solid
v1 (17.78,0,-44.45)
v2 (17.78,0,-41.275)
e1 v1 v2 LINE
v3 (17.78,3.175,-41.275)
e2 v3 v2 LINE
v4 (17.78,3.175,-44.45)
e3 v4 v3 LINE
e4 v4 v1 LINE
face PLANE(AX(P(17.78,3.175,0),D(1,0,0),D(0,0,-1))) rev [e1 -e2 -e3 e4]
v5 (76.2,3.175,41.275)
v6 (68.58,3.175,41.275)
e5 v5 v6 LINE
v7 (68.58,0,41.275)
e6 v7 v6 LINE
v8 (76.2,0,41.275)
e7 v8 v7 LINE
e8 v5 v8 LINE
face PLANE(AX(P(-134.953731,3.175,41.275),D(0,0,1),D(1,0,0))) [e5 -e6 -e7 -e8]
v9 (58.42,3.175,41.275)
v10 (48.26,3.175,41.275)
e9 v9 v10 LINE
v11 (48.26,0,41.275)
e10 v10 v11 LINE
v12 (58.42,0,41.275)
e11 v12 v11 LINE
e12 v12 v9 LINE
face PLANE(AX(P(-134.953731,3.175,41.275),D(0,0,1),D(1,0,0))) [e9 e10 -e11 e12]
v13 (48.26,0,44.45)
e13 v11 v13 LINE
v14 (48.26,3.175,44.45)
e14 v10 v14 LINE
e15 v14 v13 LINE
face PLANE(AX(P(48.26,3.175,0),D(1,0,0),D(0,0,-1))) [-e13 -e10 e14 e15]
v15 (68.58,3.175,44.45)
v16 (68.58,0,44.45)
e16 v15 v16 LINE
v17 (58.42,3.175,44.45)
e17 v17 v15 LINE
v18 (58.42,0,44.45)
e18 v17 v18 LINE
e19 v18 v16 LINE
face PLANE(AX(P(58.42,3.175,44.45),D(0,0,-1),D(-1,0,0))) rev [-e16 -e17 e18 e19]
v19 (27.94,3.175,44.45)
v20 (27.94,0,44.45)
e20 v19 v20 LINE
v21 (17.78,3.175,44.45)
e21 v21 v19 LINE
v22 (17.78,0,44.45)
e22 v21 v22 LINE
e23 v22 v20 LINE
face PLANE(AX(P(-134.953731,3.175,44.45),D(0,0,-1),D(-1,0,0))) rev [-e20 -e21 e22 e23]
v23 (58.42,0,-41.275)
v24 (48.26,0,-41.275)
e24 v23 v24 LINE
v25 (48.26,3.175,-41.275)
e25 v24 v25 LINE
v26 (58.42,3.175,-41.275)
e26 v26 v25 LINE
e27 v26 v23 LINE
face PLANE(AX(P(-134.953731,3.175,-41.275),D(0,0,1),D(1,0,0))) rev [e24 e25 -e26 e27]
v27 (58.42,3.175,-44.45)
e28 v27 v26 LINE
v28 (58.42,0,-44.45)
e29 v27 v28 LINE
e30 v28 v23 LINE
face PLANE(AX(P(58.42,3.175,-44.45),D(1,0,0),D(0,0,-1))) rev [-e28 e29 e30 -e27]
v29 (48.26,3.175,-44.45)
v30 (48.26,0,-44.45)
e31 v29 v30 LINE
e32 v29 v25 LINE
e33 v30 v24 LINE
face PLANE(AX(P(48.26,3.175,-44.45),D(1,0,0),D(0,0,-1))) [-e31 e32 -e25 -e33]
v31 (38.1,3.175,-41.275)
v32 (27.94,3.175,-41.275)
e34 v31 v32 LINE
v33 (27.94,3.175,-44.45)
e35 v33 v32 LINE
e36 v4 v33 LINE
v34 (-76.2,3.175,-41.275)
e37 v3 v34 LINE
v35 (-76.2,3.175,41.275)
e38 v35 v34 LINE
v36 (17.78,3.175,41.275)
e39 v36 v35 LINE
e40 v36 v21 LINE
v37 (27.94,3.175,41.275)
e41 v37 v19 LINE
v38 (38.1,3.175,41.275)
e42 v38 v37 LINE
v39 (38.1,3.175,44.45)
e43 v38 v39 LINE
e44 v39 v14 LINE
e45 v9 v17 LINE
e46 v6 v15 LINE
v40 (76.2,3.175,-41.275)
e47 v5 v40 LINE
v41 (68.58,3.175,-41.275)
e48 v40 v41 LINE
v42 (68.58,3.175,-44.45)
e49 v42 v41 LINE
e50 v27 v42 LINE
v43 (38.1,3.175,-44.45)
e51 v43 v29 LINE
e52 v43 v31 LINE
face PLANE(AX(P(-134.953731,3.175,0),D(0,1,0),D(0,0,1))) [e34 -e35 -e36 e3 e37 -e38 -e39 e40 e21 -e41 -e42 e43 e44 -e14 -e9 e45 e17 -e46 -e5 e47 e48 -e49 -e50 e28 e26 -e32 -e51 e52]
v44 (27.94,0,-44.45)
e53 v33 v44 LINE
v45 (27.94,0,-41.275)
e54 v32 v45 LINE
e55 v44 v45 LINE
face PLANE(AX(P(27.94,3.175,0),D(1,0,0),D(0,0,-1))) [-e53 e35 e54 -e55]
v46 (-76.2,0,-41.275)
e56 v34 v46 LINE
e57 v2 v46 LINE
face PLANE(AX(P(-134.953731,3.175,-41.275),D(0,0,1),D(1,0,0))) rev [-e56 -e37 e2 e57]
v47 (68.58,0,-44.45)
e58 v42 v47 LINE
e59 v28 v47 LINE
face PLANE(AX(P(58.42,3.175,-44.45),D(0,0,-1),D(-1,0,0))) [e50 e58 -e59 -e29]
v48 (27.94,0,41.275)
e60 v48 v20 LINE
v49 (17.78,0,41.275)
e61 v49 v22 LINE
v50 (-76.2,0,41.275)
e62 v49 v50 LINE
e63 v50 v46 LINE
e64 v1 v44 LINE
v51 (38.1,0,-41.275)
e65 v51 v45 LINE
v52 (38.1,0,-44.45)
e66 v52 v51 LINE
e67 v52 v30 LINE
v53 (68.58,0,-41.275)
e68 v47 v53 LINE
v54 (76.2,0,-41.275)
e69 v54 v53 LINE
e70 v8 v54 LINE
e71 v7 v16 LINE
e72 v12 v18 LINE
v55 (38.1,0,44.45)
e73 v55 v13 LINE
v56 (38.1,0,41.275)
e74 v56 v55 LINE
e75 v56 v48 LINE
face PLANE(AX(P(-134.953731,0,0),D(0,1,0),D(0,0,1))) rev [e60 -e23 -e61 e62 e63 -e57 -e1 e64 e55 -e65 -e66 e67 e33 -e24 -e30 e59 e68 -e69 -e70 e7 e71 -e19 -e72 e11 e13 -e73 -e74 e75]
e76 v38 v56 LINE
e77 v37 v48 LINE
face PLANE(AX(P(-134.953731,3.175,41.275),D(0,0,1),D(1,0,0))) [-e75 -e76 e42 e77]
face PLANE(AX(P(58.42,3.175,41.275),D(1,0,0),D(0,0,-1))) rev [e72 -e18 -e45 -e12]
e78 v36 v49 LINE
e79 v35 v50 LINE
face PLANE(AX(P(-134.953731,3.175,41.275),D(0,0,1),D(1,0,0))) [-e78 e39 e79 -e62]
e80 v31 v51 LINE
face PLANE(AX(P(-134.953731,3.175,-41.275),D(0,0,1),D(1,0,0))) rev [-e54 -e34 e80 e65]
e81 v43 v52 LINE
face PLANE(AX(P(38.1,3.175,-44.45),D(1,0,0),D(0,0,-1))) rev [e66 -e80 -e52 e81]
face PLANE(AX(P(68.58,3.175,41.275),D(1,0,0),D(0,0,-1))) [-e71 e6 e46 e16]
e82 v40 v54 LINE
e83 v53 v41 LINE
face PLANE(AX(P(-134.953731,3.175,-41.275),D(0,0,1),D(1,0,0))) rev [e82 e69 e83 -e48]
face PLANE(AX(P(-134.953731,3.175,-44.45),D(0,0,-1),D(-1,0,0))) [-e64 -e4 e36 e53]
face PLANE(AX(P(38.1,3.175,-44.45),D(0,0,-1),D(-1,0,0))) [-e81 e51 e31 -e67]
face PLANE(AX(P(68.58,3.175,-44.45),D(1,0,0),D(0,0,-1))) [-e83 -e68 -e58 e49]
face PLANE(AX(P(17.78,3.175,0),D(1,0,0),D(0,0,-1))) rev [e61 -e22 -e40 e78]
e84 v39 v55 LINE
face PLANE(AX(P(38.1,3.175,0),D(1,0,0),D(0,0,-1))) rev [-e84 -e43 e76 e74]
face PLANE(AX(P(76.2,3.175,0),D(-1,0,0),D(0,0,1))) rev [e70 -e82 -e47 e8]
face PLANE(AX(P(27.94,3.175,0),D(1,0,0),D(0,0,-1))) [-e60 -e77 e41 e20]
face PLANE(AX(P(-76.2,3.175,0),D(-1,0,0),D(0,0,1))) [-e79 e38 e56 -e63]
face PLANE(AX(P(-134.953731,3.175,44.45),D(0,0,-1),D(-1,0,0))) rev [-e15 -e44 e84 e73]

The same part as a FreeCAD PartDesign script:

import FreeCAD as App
import Part
import Sketcher

V = App.Vector
Q = App.Units.Quantity

doc = App.newDocument("Part")
params = doc.addObject("Spreadsheet::Sheet", "Params")
for row, (alias, value) in enumerate([
    ("sketch1_width", "0.4 in"),
    ("sketch1_width2", "0.3 in"),
    ("sketch1_width3", "3.7 in"),
    ("sketch1_height", "3.25 in"),
    ("sketch1_height2", "0.125 in"),
    ("pad1_length", "0.125 in"),
], start=1):
    params.set(f"A{row}", alias)
    params.set(f"B{row}", "=" + value)
    params.setAlias(f"B{row}", alias)

body = doc.addObject("PartDesign::Body", "Body")

# Sketch on XZ plane
sketch1 = doc.addObject("Sketcher::SketchObject", "Sketch")
body.addObject(sketch1)
sketch1.AttachmentSupport = (doc.XZ_Plane, [""])
sketch1.MapMode = "FlatFace"
sketch1.addGeometry([
    Part.LineSegment(V(17.8, 41.3, 0), V(17.8, 44.5, 0)),  # 0
    Part.LineSegment(V(17.8, 44.5, 0), V(27.9, 44.5, 0)),  # 1
    Part.LineSegment(V(27.9, 44.5, 0), V(27.9, 41.3, 0)),  # 2
    Part.LineSegment(V(27.9, 41.3, 0), V(38.1, 41.3, 0)),  # 3
    Part.LineSegment(V(38.1, 41.3, 0), V(38.1, 44.5, 0)),  # 4
    Part.LineSegment(V(38.1, 44.5, 0), V(48.3, 44.5, 0)),  # 5
    Part.LineSegment(V(48.3, 44.5, 0), V(48.3, 41.3, 0)),  # 6
    Part.LineSegment(V(48.3, 41.3, 0), V(58.4, 41.3, 0)),  # 7
    Part.LineSegment(V(58.4, 41.3, 0), V(58.4, 44.5, 0)),  # 8
    Part.LineSegment(V(58.4, 44.5, 0), V(68.6, 44.5, 0)),  # 9
    Part.LineSegment(V(68.6, 44.5, 0), V(68.6, 41.3, 0)),  # 10
    Part.LineSegment(V(68.6, 41.3, 0), V(76.2, 41.3, 0)),  # 11
    Part.LineSegment(V(76.2, 41.3, 0), V(76.2, -41.3, 0)),  # 12
    Part.LineSegment(V(76.2, -41.3, 0), V(68.6, -41.3, 0)),  # 13
    Part.LineSegment(V(68.6, -41.3, 0), V(68.6, -44.5, 0)),  # 14
    Part.LineSegment(V(68.6, -44.5, 0), V(58.4, -44.5, 0)),  # 15
    Part.LineSegment(V(58.4, -44.5, 0), V(58.4, -41.3, 0)),  # 16
    Part.LineSegment(V(58.4, -41.3, 0), V(48.3, -41.3, 0)),  # 17
    Part.LineSegment(V(48.3, -41.3, 0), V(48.3, -44.5, 0)),  # 18
    Part.LineSegment(V(48.3, -44.5, 0), V(38.1, -44.5, 0)),  # 19
    Part.LineSegment(V(38.1, -44.5, 0), V(38.1, -41.3, 0)),  # 20
    Part.LineSegment(V(38.1, -41.3, 0), V(27.9, -41.3, 0)),  # 21
    Part.LineSegment(V(27.9, -41.3, 0), V(27.9, -44.5, 0)),  # 22
    Part.LineSegment(V(27.9, -44.5, 0), V(17.8, -44.5, 0)),  # 23
    Part.LineSegment(V(17.8, -44.5, 0), V(17.8, -41.3, 0)),  # 24
    Part.LineSegment(V(17.8, -41.3, 0), V(-76.2, -41.3, 0)),  # 25
    Part.LineSegment(V(-76.2, -41.3, 0), V(-76.2, 41.3, 0)),  # 26
    Part.LineSegment(V(-76.2, 41.3, 0), V(17.8, 41.3, 0)),  # 27
], False)
sketch1.addConstraint([
    Sketcher.Constraint("Coincident", 0, 2, 1, 1),
    Sketcher.Constraint("Coincident", 1, 2, 2, 1),
    Sketcher.Constraint("Coincident", 2, 2, 3, 1),
    Sketcher.Constraint("Coincident", 3, 2, 4, 1),
    Sketcher.Constraint("Coincident", 4, 2, 5, 1),
    Sketcher.Constraint("Coincident", 5, 2, 6, 1),
    Sketcher.Constraint("Coincident", 6, 2, 7, 1),
    Sketcher.Constraint("Coincident", 7, 2, 8, 1),
    Sketcher.Constraint("Coincident", 8, 2, 9, 1),
    Sketcher.Constraint("Coincident", 9, 2, 10, 1),
    Sketcher.Constraint("Coincident", 10, 2, 11, 1),
    Sketcher.Constraint("Coincident", 11, 2, 12, 1),
    Sketcher.Constraint("Coincident", 12, 2, 13, 1),
    Sketcher.Constraint("Coincident", 13, 2, 14, 1),
    Sketcher.Constraint("Coincident", 14, 2, 15, 1),
    Sketcher.Constraint("Coincident", 15, 2, 16, 1),
    Sketcher.Constraint("Coincident", 16, 2, 17, 1),
    Sketcher.Constraint("Coincident", 17, 2, 18, 1),
    Sketcher.Constraint("Coincident", 18, 2, 19, 1),
    Sketcher.Constraint("Coincident", 19, 2, 20, 1),
    Sketcher.Constraint("Coincident", 20, 2, 21, 1),
    Sketcher.Constraint("Coincident", 21, 2, 22, 1),
    Sketcher.Constraint("Coincident", 22, 2, 23, 1),
    Sketcher.Constraint("Coincident", 23, 2, 24, 1),
    Sketcher.Constraint("Coincident", 24, 2, 25, 1),
    Sketcher.Constraint("Coincident", 25, 2, 26, 1),
    Sketcher.Constraint("Coincident", 26, 2, 27, 1),
    Sketcher.Constraint("Coincident", 27, 2, 0, 1),
    Sketcher.Constraint("Vertical", 0),
    Sketcher.Constraint("Horizontal", 1),
    Sketcher.Constraint("Vertical", 2),
    Sketcher.Constraint("Horizontal", 3),
    Sketcher.Constraint("Vertical", 4),
    Sketcher.Constraint("Horizontal", 5),
    Sketcher.Constraint("Vertical", 6),
    Sketcher.Constraint("Horizontal", 7),
    Sketcher.Constraint("Vertical", 8),
    Sketcher.Constraint("Horizontal", 9),
    Sketcher.Constraint("Vertical", 10),
    Sketcher.Constraint("Horizontal", 11),
    Sketcher.Constraint("Vertical", 12),
    Sketcher.Constraint("Horizontal", 13),
    Sketcher.Constraint("Vertical", 14),
    Sketcher.Constraint("Horizontal", 15),
    Sketcher.Constraint("Vertical", 16),
    Sketcher.Constraint("Horizontal", 17),
    Sketcher.Constraint("Vertical", 18),
    Sketcher.Constraint("Horizontal", 19),
    Sketcher.Constraint("Vertical", 20),
    Sketcher.Constraint("Horizontal", 21),
    Sketcher.Constraint("Vertical", 22),
    Sketcher.Constraint("Horizontal", 23),
    Sketcher.Constraint("Vertical", 24),
    Sketcher.Constraint("Horizontal", 25),
    Sketcher.Constraint("Vertical", 26),
    Sketcher.Constraint("Horizontal", 27),
    Sketcher.Constraint("Symmetric", 11, 2, 25, 2, -1, 1),
    Sketcher.Constraint("Symmetric", 10, 2, 13, 2, -1),
    Sketcher.Constraint("Symmetric", 8, 2, 15, 2, -1),
    Sketcher.Constraint("Symmetric", 6, 2, 17, 2, -1),
    Sketcher.Constraint("Symmetric", 4, 2, 19, 2, -1),
    Sketcher.Constraint("Symmetric", 2, 2, 21, 2, -1),
    Sketcher.Constraint("Symmetric", 0, 2, 23, 2, -1),
    Sketcher.Constraint("Horizontal", 1, 2, 4, 2),
    Sketcher.Constraint("Horizontal", 3, 2, 6, 2),
    Sketcher.Constraint("Horizontal", 5, 2, 8, 2),
    Sketcher.Constraint("Horizontal", 7, 2, 10, 2),
    Sketcher.Constraint("Horizontal", 11, 2, 26, 2),
    Sketcher.Constraint("Equal", 1, 3),
    Sketcher.Constraint("Equal", 3, 5),
    Sketcher.Constraint("Equal", 5, 7),
    Sketcher.Constraint("Equal", 7, 9),
    Sketcher.Constraint("DistanceX", 1, 1, 1, 2, Q("0.4 in")),
    Sketcher.Constraint("DistanceX", 11, 1, 11, 2, Q("0.3 in")),
    Sketcher.Constraint("DistanceX", 25, 2, 25, 1, Q("3.7 in")),
    Sketcher.Constraint("DistanceY", 12, 2, 12, 1, Q("3.25 in")),
    Sketcher.Constraint("DistanceY", 0, 1, 0, 2, Q("0.125 in")),
])
sketch1.setExpression("Constraints[72]", "Params.sketch1_width")
sketch1.setExpression("Constraints[73]", "Params.sketch1_width2")
sketch1.setExpression("Constraints[74]", "Params.sketch1_width3")
sketch1.setExpression("Constraints[75]", "Params.sketch1_height")
sketch1.setExpression("Constraints[76]", "Params.sketch1_height2")
pad1 = doc.addObject("PartDesign::Pad", "Pad")
body.addObject(pad1)
pad1.Profile = sketch1
pad1.setExpression("Length", "Params.pad1_length")
pad1.Reversed = True

doc.recompute()
